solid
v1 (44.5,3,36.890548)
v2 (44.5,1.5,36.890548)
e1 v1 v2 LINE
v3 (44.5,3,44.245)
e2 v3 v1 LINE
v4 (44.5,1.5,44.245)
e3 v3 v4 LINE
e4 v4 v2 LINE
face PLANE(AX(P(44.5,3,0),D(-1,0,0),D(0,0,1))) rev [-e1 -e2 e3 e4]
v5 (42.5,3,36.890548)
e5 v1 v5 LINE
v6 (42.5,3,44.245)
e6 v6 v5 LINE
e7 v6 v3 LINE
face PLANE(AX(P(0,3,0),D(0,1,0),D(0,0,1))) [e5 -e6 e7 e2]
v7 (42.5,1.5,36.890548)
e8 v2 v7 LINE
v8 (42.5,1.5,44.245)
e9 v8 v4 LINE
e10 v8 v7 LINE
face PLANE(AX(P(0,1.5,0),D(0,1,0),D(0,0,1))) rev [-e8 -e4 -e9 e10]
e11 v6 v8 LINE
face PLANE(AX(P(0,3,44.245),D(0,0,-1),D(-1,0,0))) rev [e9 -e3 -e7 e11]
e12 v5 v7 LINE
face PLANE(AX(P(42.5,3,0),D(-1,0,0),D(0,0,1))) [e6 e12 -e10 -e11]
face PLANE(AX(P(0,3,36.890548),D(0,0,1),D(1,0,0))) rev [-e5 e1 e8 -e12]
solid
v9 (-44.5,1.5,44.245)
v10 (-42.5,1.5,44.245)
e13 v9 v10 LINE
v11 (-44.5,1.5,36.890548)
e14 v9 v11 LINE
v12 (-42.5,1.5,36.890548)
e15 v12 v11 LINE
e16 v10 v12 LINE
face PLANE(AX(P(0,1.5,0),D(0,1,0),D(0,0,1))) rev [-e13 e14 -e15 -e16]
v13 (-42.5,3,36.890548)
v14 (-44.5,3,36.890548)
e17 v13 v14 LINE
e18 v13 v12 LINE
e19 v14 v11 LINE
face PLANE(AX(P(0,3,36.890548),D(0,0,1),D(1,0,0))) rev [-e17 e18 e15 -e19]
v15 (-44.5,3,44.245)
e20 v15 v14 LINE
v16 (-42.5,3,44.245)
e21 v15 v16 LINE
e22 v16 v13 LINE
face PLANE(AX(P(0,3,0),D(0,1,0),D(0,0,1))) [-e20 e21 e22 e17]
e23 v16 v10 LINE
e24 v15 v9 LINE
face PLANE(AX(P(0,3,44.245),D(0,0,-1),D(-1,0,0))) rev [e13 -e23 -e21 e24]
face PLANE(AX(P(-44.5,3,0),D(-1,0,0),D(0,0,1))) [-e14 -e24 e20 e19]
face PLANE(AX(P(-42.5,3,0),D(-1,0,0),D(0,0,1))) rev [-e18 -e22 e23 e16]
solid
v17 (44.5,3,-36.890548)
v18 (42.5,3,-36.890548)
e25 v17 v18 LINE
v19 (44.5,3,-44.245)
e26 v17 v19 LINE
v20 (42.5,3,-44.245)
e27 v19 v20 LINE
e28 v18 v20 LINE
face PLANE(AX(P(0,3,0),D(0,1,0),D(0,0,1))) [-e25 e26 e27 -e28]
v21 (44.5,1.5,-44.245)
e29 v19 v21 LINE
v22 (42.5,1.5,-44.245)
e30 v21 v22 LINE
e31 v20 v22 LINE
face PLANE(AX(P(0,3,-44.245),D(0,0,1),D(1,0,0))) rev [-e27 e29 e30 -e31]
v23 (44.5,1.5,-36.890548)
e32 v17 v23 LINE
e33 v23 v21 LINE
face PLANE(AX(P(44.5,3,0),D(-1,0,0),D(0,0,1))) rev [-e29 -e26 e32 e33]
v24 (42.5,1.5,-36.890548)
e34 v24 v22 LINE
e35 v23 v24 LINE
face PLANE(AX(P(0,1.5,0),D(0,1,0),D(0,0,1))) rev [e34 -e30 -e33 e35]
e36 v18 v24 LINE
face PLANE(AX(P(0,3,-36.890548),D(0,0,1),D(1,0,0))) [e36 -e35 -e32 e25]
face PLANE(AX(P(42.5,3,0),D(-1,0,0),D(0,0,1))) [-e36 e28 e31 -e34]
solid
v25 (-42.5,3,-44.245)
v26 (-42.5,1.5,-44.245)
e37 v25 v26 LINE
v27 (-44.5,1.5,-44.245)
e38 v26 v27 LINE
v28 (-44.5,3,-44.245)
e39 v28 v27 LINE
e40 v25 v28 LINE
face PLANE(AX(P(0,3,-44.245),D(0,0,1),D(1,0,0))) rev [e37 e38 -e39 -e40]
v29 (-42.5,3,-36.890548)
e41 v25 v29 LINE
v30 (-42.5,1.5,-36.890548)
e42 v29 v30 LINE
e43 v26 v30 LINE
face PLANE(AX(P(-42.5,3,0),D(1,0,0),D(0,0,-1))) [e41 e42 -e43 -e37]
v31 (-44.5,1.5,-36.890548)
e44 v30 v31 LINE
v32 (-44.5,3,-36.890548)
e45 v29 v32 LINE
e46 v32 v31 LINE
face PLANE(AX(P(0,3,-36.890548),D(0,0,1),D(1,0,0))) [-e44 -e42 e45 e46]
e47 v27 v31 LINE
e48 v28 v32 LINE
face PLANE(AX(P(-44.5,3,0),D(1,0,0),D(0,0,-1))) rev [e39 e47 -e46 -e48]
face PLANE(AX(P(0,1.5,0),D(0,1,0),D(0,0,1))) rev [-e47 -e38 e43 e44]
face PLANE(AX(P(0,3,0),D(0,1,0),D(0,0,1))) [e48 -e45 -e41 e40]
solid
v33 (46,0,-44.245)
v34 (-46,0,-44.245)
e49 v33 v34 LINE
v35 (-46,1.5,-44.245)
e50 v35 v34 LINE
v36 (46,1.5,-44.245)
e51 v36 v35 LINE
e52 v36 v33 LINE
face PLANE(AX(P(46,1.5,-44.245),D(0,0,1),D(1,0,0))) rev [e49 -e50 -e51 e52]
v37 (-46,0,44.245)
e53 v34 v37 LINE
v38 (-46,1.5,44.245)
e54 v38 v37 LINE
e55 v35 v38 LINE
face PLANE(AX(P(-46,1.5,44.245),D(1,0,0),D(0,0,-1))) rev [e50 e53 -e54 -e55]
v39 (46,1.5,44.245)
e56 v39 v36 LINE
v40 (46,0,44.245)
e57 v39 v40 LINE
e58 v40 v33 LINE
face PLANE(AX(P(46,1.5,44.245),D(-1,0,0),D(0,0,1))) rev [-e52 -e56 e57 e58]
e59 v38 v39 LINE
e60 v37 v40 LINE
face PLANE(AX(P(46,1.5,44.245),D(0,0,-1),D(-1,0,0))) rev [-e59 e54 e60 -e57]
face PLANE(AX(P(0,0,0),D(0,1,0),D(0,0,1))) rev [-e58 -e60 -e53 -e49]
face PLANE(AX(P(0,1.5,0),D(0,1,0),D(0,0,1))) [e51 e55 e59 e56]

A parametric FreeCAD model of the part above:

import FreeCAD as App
import Part
import Sketcher
from FreeCAD import Vector

doc = App.newDocument("Part")
body = doc.addObject("PartDesign::Body", "Body")

sketch1 = doc.addObject("Sketcher::SketchObject", "Sketch")
body.addObject(sketch1)
sketch1.AttachmentSupport = (doc.XZ_Plane, [""])
sketch1.MapMode = "FlatFace"
sketch1.addGeometry([
    Part.LineSegment(Vector(-46, -44.245, 0), Vector(-46, 44.245, 0)),
    Part.LineSegment(Vector(-46, 44.245, 0), Vector(46, 44.245, 0)),
    Part.LineSegment(Vector(46, 44.245, 0), Vector(46, -44.245, 0)),
    Part.LineSegment(Vector(46, -44.245, 0), Vector(-46, -44.245, 0)),
], False)
sketch1.addConstraint([
    Sketcher.Constraint("Coincident", 0, 2, 1, 1),
    Sketcher.Constraint("Coincident", 1, 2, 2, 1),
    Sketcher.Constraint("Coincident", 2, 2, 3, 1),
    Sketcher.Constraint("Coincident", 3, 2, 0, 1),
    Sketcher.Constraint("Vertical", 0),
    Sketcher.Constraint("Horizontal", 1),
    Sketcher.Constraint("Vertical", 2),
    Sketcher.Constraint("Horizontal", 3),
    Sketcher.Constraint("Symmetric", 0, 2, 2, 2, -1, 1),
    Sketcher.Constraint("DistanceX", 1, 1, 1, 2, 92.0),
    Sketcher.Constraint("DistanceY", 0, 1, 0, 2, 88.49),
])
pad1 = doc.addObject("PartDesign::Pad", "Pad")
body.addObject(pad1)
pad1.Profile = sketch1
pad1.Length = 1.5
pad1.Reversed = True
body2 = doc.addObject("PartDesign::Body", "Body001")

sketch2 = doc.addObject("Sketcher::SketchObject", "Sketch001")
body2.addObject(sketch2)
sketch2.AttachmentSupport = (doc.getObject("XZ_Plane001"), [""])
sketch2.MapMode = "FlatFace"
sketch2.AttachmentOffset = App.Placement(Vector(0, 0, -1.5), App.Rotation())
sketch2.addGeometry([
    Part.LineSegment(Vector(42.5, -44.245, 0), Vector(42.5, -36.890548, 0)),
    Part.LineSegment(Vector(42.5, -36.890548, 0), Vector(44.5, -36.890548, 0)),
    Part.LineSegment(Vector(44.5, -36.890548, 0), Vector(44.5, -44.245, 0)),
    Part.LineSegment(Vector(44.5, -44.245, 0), Vector(42.5, -44.245, 0)),
], False)
sketch2.addConstraint([
    Sketcher.Constraint("Coincident", 0, 2, 1, 1),
    Sketcher.Constraint("Coincident", 1, 2, 2, 1),
    Sketcher.Constraint("Coincident", 2, 2, 3, 1),
    Sketcher.Constraint("Coincident", 3, 2, 0, 1),
    Sketcher.Constraint("Vertical", 0),
    Sketcher.Constraint("Horizontal", 1),
    Sketcher.Constraint("Vertical", 2),
    Sketcher.Constraint("Horizontal", 3),
    Sketcher.Constraint("DistanceX", 1, 1, 1, 2, 2.0),
    Sketcher.Constraint("DistanceX", -1, 1, 0, 2, 42.5),
    Sketcher.Constraint("DistanceY", 2, 2, -1, 1, 44.245),
    Sketcher.Constraint("DistanceY", 0, 1, 0, 2, 7.354452),
])
pad2 = doc.addObject("PartDesign::Pad", "Pad001")
body2.addObject(pad2)
pad2.Profile = sketch2
pad2.Length = 1.5
pad2.Reversed = True
body3 = doc.addObject("PartDesign::Body", "Body002")

sketch3 = doc.addObject("Sketcher::SketchObject", "Sketch002")
body3.addObject(sketch3)
sketch3.AttachmentSupport = (doc.getObject("XZ_Plane002"), [""])
sketch3.MapMode = "FlatFace"
sketch3.AttachmentOffset = App.Placement(Vector(0, 0, -1.5), App.Rotation())
sketch3.addGeometry([
    Part.LineSegment(Vector(-44.5, -44.245, 0), Vector(-44.5, -36.890548, 0)),
    Part.LineSegment(Vector(-44.5, -36.890548, 0), Vector(-42.5, -36.890548, 0)),
    Part.LineSegment(Vector(-42.5, -36.890548, 0), Vector(-42.5, -44.245, 0)),
    Part.LineSegment(Vector(-42.5, -44.245, 0), Vector(-44.5, -44.245, 0)),
], False)
sketch3.addConstraint([
    Sketcher.Constraint("Coincident", 0, 2, 1, 1),
    Sketcher.Constraint("Coincident", 1, 2, 2, 1),
    Sketcher.Constraint("Coincident", 2, 2, 3, 1),
    Sketcher.Constraint("Coincident", 3, 2, 0, 1),
    Sketcher.Constraint("Vertical", 0),
    Sketcher.Constraint("Horizontal", 1),
    Sketcher.Constraint("Vertical", 2),
    Sketcher.Constraint("Horizontal", 3),
    Sketcher.Constraint("DistanceX", 1, 1, 1, 2, 2.0),
    Sketcher.Constraint("DistanceX", 0, 2, -1, 1, 44.5),
    Sketcher.Constraint("DistanceY", 2, 2, -1, 1, 44.245),
    Sketcher.Constraint("DistanceY", 0, 1, 0, 2, 7.354452),
])
pad3 = doc.addObject("PartDesign::Pad", "Pad002")
body3.addObject(pad3)
pad3.Profile = sketch3
pad3.Length = 1.5
pad3.Reversed = True
body4 = doc.addObject("PartDesign::Body", "Body003")

sketch4 = doc.addObject("Sketcher::SketchObject", "Sketch003")
body4.addObject(sketch4)
sketch4.AttachmentSupport = (doc.getObject("XZ_Plane003"), [""])
sketch4.MapMode = "FlatFace"
sketch4.AttachmentOffset = App.Placement(Vector(0, 0, -1.5), App.Rotation())
sketch4.addGeometry([
    Part.LineSegment(Vector(-44.5, 36.890548, 0), Vector(-44.5, 44.245, 0)),
    Part.LineSegment(Vector(-44.5, 44.245, 0), Vector(-42.5, 44.245, 0)),
    Part.LineSegment(Vector(-42.5, 44.245, 0), Vector(-42.5, 36.890548, 0)),
    Part.LineSegment(Vector(-42.5, 36.890548, 0), Vector(-44.5, 36.890548, 0)),
], False)
sketch4.addConstraint([
    Sketcher.Constraint("Coincident", 0, 2, 1, 1),
    Sketcher.Constraint("Coincident", 1, 2, 2, 1),
    Sketcher.Constraint("Coincident", 2, 2, 3, 1),
    Sketcher.Constraint("Coincident", 3, 2, 0, 1),
    Sketcher.Constraint("Vertical", 0),
    Sketcher.Constraint("Horizontal", 1),
    Sketcher.Constraint("Vertical", 2),
    Sketcher.Constraint("Horizontal", 3),
    Sketcher.Constraint("DistanceX", 1, 1, 1, 2, 2.0),
    Sketcher.Constraint("DistanceX", 0, 2, -1, 1, 44.5),
    Sketcher.Constraint("DistanceY", -1, 1, 0, 2, 44.245),
    Sketcher.Constraint("DistanceY", 0, 1, 0, 2, 7.354452),
])
pad4 = doc.addObject("PartDesign::Pad", "Pad003")
body4.addObject(pad4)
pad4.Profile = sketch4
pad4.Length = 1.5
pad4.Reversed = True
body5 = doc.addObject("PartDesign::Body", "Body004")

sketch5 = doc.addObject("Sketcher::SketchObject", "Sketch004")
body5.addObject(sketch5)
sketch5.AttachmentSupport = (doc.getObject("XZ_Plane004"), [""])
sketch5.MapMode = "FlatFace"
sketch5.AttachmentOffset = App.Placement(Vector(0, 0, -1.5), App.Rotation())
sketch5.addGeometry([
    Part.LineSegment(Vector(42.5, 36.890548, 0), Vector(42.5, 44.245, 0)),
    Part.LineSegment(Vector(42.5, 44.245, 0), Vector(44.5, 44.245, 0)),
    Part.LineSegment(Vector(44.5, 44.245, 0), Vector(44.5, 36.890548, 0)),
    Part.LineSegment(Vector(44.5, 36.890548, 0), Vector(42.5, 36.890548, 0)),
], False)
sketch5.addConstraint([
    Sketcher.Constraint("Coincident", 0, 2, 1, 1),
    Sketcher.Constraint("Coincident", 1, 2, 2, 1),
    Sketcher.Constraint("Coincident", 2, 2, 3, 1),
    Sketcher.Constraint("Coincident", 3, 2, 0, 1),
    Sketcher.Constraint("Vertical", 0),
    Sketcher.Constraint("Horizontal", 1),
    Sketcher.Constraint("Vertical", 2),
    Sketcher.Constraint("Horizontal", 3),
    Sketcher.Constraint("DistanceX", 1, 1, 1, 2, 2.0),
    Sketcher.Constraint("DistanceX", -1, 1, 0, 2, 42.5),
    Sketcher.Constraint("DistanceY", -1, 1, 0, 2, 44.245),
    Sketcher.Constraint("DistanceY", 0, 1, 0, 2, 7.354452),
])
pad5 = doc.addObject("PartDesign::Pad", "Pad004")
body5.addObject(pad5)
pad5.Profile = sketch5
pad5.Length = 1.5
pad5.Reversed = True

doc.recompute()
